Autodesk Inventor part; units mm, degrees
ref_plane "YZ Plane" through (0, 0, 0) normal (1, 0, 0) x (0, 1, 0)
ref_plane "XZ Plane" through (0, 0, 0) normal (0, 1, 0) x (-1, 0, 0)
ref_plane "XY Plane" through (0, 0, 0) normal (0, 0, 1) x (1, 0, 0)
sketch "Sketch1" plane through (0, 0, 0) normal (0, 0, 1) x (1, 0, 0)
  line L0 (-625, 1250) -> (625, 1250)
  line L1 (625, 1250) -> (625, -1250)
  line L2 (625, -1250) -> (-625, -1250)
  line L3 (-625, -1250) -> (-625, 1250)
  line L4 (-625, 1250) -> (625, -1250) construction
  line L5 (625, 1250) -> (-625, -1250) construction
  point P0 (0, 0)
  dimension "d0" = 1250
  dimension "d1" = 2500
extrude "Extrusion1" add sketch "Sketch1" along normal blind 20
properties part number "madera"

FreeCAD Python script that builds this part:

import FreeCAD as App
import Part
import Sketcher
from FreeCAD import Vector


def add_polygon(sketch, points):
    """Adds a closed chain of lines whose ends are joined by coincident constraints."""
    first, n = sketch.GeometryCount, len(points)
    for a, b in zip(points, points[1:] + points[:1]):
        sketch.addGeometry(Part.LineSegment(App.Vector(*a, 0), App.Vector(*b, 0)), False)
    for i in range(n):
        sketch.addConstraint(Sketcher.Constraint("Coincident", first + i, 2, first + (i + 1) % n, 1))

doc = App.newDocument("Part")
body = doc.addObject("PartDesign::Body", "Body")

sketch1 = body.newObject("Sketcher::SketchObject", "Sketch")
sketch1.AttachmentSupport = (doc.getObject("XY_Plane"), [""])
sketch1.MapMode = "FlatFace"
add_polygon(sketch1, [(625, 1250), (-625, 1250), (-625, -1250), (625, -1250)])
sketch1.addConstraint([
    Sketcher.Constraint("Horizontal", 0),
    Sketcher.Constraint("Vertical", 1),
    Sketcher.Constraint("Horizontal", 2),
    Sketcher.Constraint("Vertical", 3),
    Sketcher.Constraint("Symmetric", 0, 2, 2, 2, -1, 1),
    Sketcher.Constraint("DistanceX", 0, 2, 0, 1, 1250.0),
    Sketcher.Constraint("DistanceY", 1, 2, 1, 1, 2500.0),
])
pad1 = body.newObject("PartDesign::Pad", "Pad")
pad1.Profile = sketch1
pad1.Length = 20

doc.recompute()
